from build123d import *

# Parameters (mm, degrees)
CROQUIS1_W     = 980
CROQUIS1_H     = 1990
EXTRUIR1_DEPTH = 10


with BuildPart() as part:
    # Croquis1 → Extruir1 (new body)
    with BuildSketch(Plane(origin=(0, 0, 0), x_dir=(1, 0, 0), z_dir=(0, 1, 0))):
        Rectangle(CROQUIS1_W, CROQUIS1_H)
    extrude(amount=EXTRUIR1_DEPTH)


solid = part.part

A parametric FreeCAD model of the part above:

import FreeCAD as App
import Part
import Sketcher

V = App.Vector
Q = App.Units.Quantity


def add_polygon(sketch, points):
    """Adds a closed chain of lines whose ends are joined by coincident constraints."""
    first, n = sketch.GeometryCount, len(points)
    for a, b in zip(points, points[1:] + points[:1]):
        sketch.addGeometry(Part.LineSegment(App.Vector(*a, 0), App.Vector(*b, 0)), False)
    for i in range(n):
        sketch.addConstraint(Sketcher.Constraint("Coincident", first + i, 2, first + (i + 1) % n, 1))

doc = App.newDocument("Part")
params = doc.addObject("Spreadsheet::Sheet", "Params")
for row, (alias, value) in enumerate([
    ("sketch1_width", "980 mm"),
    ("sketch1_height", "1990 mm"),
    ("pad1_length", "10 mm"),
], start=1):
    params.set(f"A{row}", alias)
    params.set(f"B{row}", "=" + value)
    params.setAlias(f"B{row}", alias)

body = doc.addObject("PartDesign::Body", "Body")

sketch1 = body.newObject("Sketcher::SketchObject", "Sketch")
sketch1.AttachmentSupport = (doc.getObject("XZ_Plane"), [""])
sketch1.MapMode = "FlatFace"
add_polygon(sketch1, [(-490, -995), (-490, 995), (490, 995), (490, -995)])
sketch1.addConstraint([
    Sketcher.Constraint("Vertical", 0),
    Sketcher.Constraint("Horizontal", 1),
    Sketcher.Constraint("Vertical", 2),
    Sketcher.Constraint("Horizontal", 3),
    Sketcher.Constraint("Symmetric", 0, 2, 2, 2, -1, 1),
    Sketcher.Constraint("DistanceX", 1, 1, 1, 2, Q("980 mm")),
    Sketcher.Constraint("DistanceY", 0, 1, 0, 2, Q("1990 mm")),
])
sketch1.setExpression("Constraints[9]", "Params.sketch1_width")
sketch1.setExpression("Constraints[10]", "Params.sketch1_height")
pad1 = body.newObject("PartDesign::Pad", "Pad")
pad1.Profile = sketch1
pad1.setExpression("Length", "Params.pad1_length")
pad1.Reversed = True

doc.recompute()
